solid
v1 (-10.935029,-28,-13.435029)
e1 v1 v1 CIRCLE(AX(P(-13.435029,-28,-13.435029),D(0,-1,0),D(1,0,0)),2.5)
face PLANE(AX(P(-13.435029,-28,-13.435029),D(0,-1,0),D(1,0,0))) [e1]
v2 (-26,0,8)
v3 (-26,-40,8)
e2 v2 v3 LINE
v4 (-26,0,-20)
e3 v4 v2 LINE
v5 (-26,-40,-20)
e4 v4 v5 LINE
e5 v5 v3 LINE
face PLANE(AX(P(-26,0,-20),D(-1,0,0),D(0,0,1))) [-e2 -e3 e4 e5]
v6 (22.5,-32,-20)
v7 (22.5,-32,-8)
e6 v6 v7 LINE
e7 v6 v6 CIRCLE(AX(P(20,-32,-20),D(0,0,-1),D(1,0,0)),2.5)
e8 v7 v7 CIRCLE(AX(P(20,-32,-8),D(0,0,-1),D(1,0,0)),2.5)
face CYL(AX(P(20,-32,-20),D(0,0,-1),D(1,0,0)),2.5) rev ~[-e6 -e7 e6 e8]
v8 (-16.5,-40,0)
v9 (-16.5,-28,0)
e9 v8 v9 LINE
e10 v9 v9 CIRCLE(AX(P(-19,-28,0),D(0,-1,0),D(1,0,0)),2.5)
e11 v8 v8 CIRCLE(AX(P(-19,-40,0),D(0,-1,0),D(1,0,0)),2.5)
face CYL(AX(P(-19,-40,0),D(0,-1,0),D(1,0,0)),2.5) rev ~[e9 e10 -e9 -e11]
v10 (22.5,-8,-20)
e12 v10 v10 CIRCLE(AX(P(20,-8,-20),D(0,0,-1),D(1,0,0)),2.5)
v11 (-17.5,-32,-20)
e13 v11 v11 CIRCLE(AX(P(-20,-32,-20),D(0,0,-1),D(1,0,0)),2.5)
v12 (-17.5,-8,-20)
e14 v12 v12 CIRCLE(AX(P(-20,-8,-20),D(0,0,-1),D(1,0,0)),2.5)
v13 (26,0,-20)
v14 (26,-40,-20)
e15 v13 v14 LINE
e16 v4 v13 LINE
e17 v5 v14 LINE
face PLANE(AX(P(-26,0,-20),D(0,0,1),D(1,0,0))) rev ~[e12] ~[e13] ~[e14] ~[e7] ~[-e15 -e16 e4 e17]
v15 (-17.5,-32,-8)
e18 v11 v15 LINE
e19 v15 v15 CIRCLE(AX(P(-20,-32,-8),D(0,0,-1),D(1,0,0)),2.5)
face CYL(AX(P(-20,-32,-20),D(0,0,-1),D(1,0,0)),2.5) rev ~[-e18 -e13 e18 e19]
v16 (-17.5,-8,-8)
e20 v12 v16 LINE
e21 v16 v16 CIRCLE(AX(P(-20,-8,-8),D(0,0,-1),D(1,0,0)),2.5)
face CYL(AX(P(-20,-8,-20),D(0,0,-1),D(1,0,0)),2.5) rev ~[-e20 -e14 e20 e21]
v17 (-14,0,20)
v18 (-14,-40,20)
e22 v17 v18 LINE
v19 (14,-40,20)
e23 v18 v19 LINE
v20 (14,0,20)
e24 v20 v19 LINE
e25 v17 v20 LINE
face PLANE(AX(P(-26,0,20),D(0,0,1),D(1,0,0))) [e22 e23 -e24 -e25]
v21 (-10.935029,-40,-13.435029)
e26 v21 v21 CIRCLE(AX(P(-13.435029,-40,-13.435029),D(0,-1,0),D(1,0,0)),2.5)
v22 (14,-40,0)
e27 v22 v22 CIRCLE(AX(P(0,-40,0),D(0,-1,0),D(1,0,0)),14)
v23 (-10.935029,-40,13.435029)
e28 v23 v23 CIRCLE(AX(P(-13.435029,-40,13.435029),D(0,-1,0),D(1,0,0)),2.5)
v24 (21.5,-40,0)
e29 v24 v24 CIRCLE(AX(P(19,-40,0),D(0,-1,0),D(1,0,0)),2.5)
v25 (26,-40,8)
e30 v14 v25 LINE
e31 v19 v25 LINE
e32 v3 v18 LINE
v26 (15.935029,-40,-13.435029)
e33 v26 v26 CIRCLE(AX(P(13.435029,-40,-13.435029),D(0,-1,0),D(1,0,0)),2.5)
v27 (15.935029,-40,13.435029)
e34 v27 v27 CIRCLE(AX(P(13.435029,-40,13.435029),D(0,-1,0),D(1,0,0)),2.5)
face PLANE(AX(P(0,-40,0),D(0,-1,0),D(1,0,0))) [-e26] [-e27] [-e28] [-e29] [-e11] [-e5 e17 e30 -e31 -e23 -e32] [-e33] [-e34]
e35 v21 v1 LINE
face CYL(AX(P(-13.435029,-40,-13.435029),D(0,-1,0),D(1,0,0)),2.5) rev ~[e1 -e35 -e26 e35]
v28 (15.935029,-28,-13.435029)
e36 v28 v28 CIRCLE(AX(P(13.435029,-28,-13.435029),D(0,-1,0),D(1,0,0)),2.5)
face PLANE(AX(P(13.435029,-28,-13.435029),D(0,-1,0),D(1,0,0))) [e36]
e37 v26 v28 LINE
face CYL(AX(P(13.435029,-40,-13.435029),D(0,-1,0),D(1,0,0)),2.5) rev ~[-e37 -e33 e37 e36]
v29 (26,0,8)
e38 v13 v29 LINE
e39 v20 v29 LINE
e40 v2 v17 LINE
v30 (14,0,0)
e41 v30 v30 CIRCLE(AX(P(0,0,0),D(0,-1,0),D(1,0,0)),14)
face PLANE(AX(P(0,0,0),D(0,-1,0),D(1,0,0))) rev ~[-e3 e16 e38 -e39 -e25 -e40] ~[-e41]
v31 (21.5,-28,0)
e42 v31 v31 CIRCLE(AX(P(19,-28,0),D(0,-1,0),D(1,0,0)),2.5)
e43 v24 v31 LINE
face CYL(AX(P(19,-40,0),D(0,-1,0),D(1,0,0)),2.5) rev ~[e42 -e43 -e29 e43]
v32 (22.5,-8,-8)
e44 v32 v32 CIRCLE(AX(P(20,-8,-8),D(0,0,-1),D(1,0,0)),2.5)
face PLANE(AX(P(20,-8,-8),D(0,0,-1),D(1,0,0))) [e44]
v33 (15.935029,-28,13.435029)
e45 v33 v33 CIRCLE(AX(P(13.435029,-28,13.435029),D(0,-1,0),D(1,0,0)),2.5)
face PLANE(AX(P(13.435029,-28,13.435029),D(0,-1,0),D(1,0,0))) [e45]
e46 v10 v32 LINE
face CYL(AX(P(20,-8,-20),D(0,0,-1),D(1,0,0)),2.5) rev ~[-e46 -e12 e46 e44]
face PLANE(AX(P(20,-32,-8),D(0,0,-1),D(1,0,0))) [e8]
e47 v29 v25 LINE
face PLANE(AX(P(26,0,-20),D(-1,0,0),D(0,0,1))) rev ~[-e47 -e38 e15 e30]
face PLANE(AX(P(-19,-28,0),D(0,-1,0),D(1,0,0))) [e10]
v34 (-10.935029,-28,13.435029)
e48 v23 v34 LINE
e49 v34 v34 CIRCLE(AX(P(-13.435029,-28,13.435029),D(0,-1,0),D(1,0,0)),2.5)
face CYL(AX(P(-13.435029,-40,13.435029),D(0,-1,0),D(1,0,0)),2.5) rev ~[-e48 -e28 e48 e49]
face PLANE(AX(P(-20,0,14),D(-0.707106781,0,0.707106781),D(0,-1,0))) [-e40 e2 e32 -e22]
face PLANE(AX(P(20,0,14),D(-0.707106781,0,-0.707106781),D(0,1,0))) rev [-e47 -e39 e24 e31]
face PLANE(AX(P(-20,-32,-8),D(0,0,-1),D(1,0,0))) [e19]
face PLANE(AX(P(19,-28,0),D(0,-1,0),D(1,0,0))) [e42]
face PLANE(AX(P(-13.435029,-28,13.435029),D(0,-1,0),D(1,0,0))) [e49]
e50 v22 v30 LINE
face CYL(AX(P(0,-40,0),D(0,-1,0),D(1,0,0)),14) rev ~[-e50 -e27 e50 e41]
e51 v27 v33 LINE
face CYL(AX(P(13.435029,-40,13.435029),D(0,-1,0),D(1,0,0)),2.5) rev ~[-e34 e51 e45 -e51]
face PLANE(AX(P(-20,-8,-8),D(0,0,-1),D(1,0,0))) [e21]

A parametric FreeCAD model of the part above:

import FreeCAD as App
import Part
import Sketcher

V = App.Vector
Q = App.Units.Quantity


def edges_at(feature, points):
    """Names of the edges that pass closest to the given points."""
    edges = feature.Shape.Edges
    near = lambda p: min(range(len(edges)), key=lambda i: edges[i].distToShape(Part.Vertex(*p))[0])
    return sorted({f"Edge{near(p) + 1}" for p in points})

doc = App.newDocument("Part")
body = doc.addObject("PartDesign::Body", "Body")

# Sketch on XZ plane
sketch1 = doc.addObject("Sketcher::SketchObject", "Sketch")
body.addObject(sketch1)
sketch1.AttachmentSupport = (doc.XZ_Plane, [""])
sketch1.MapMode = "FlatFace"
sketch1.addGeometry(Part.LineSegment(V(-26, 20, 0), V(-26, -20, 0)), False)
sketch1.addGeometry(Part.LineSegment(V(-26, -20, 0), V(26, -20, 0)), False)
sketch1.addGeometry(Part.LineSegment(V(26, -20, 0), V(26, 20, 0)), False)
sketch1.addGeometry(Part.LineSegment(V(26, 20, 0), V(-26, 20, 0)), False)
sketch1.addConstraint(Sketcher.Constraint("Coincident", 0, 2, 1, 1))
sketch1.addConstraint(Sketcher.Constraint("Coincident", 1, 2, 2, 1))
sketch1.addConstraint(Sketcher.Constraint("Coincident", 2, 2, 3, 1))
sketch1.addConstraint(Sketcher.Constraint("Coincident", 3, 2, 0, 1))
sketch1.addConstraint(Sketcher.Constraint("Vertical", 0))
sketch1.addConstraint(Sketcher.Constraint("Horizontal", 1))
sketch1.addConstraint(Sketcher.Constraint("Vertical", 2))
sketch1.addConstraint(Sketcher.Constraint("Horizontal", 3))
sketch1.addConstraint(Sketcher.Constraint("Symmetric", 0, 2, 2, 2, -1, 1))
sketch1.addConstraint(Sketcher.Constraint("DistanceX", 1, 1, 1, 2, Q("52 mm")))
sketch1.addConstraint(Sketcher.Constraint("DistanceY", 0, 2, 0, 1, Q("40 mm")))
pad1 = doc.addObject("PartDesign::Pad", "Pad")
body.addObject(pad1)
pad1.Profile = sketch1
pad1.Length = 40

# Sketch on XZ plane
sketch2 = doc.addObject("Sketcher::SketchObject", "Sketch001")
body.addObject(sketch2)
sketch2.AttachmentSupport = (doc.XZ_Plane, [""])
sketch2.MapMode = "FlatFace"
sketch2.AttachmentOffset = App.Placement(V(0, 0, 40), App.Rotation())
sketch2.addGeometry(Part.Circle(V(0, 0, 0), V(0, 0, 1), 14), False)
sketch2.addConstraint(Sketcher.Constraint("Coincident", 0, 3, -1, 1))
sketch2.addConstraint(Sketcher.Constraint("Diameter", 0, Q("28 mm")))
pocket1 = doc.addObject("PartDesign::Pocket", "Pocket")
body.addObject(pocket1)
pocket1.Profile = sketch2
pocket1.Type = "ThroughAll"
doc.recompute()

chamfer = doc.addObject("PartDesign::Chamfer", "Chamfer")
body.addObject(chamfer)
chamfer.Base = (pocket1, edges_at(pocket1, [(-26, -20, 20), (26, -20, 20)]))
chamfer.Size = 12

# Sketch on XZ plane
sketch3 = doc.addObject("Sketcher::SketchObject", "Sketch002")
body.addObject(sketch3)
sketch3.AttachmentSupport = (doc.XZ_Plane, [""])
sketch3.MapMode = "FlatFace"
sketch3.AttachmentOffset = App.Placement(V(0, 0, 40), App.Rotation())
sketch3.addGeometry(Part.Circle(V(-19, 0, 0), V(0, 0, 1), 2.5), False)
sketch3.addGeometry(Part.Circle(V(-13.4, -13.4, 0), V(0, 0, 1), 2.5), False)
sketch3.addGeometry(Part.Circle(V(13.4, -13.4, 0), V(0, 0, 1), 2.5), False)
sketch3.addGeometry(Part.Circle(V(19, 0, 0), V(0, 0, 1), 2.5), False)
sketch3.addGeometry(Part.Circle(V(13.4, 13.4, 0), V(0, 0, 1), 2.5), False)
sketch3.addGeometry(Part.Circle(V(-13.4, 13.4, 0), V(0, 0, 1), 2.5), False)
sketch3.addConstraint(Sketcher.Constraint("Equal", 0, 1))
sketch3.addConstraint(Sketcher.Constraint("Equal", 1, 2))
sketch3.addConstraint(Sketcher.Constraint("Equal", 2, 3))
sketch3.addConstraint(Sketcher.Constraint("Equal", 3, 4))
sketch3.addConstraint(Sketcher.Constraint("Equal", 4, 5))
sketch3.addConstraint(Sketcher.Constraint("Symmetric", 0, 3, 3, 3, -1, 1))
sketch3.addConstraint(Sketcher.Constraint("Symmetric", 1, 3, 4, 3, -1, 1))
sketch3.addConstraint(Sketcher.Constraint("Symmetric", 2, 3, 5, 3, -1, 1))
sketch3.addConstraint(Sketcher.Constraint("Symmetric", 1, 3, 2, 3, -2))
sketch3.addConstraint(Sketcher.Constraint("PointOnObject", 0, 3, -1))
sketch3.addConstraint(Sketcher.Constraint("Diameter", 0, Q("5 mm")))
sketch3.addConstraint(Sketcher.Constraint("DistanceX", 0, 3, -1, 1, Q("19 mm")))
sketch3.addConstraint(Sketcher.Constraint("DistanceX", 1, 3, -1, 1, Q("13.435029 mm")))
sketch3.addConstraint(Sketcher.Constraint("DistanceY", 1, 3, -1, 1, Q("13.435029 mm")))
pocket2 = doc.addObject("PartDesign::Pocket", "Pocket001")
body.addObject(pocket2)
pocket2.Profile = sketch3
pocket2.Length = 12

# Sketch on XY plane
sketch4 = doc.addObject("Sketcher::SketchObject", "Sketch003")
body.addObject(sketch4)
sketch4.AttachmentSupport = (doc.XY_Plane, [""])
sketch4.MapMode = "FlatFace"
sketch4.AttachmentOffset = App.Placement(V(0, 0, -20), App.Rotation())
sketch4.addGeometry(Part.Circle(V(-20, -32, 0), V(0, 0, 1), 2.5), False)
sketch4.addGeometry(Part.Circle(V(20, -32, 0), V(0, 0, 1), 2.5), False)
sketch4.addGeometry(Part.Circle(V(20, -8, 0), V(0, 0, 1), 2.5), False)
sketch4.addGeometry(Part.Circle(V(-20, -8, 0), V(0, 0, 1), 2.5), False)
sketch4.addConstraint(Sketcher.Constraint("Equal", 0, 1))
sketch4.addConstraint(Sketcher.Constraint("Equal", 1, 2))
sketch4.addConstraint(Sketcher.Constraint("Equal", 2, 3))
sketch4.addConstraint(Sketcher.Constraint("Symmetric", 0, 3, 1, 3, -2))
sketch4.addConstraint(Sketcher.Constraint("Symmetric", 2, 3, 3, 3, -2))
sketch4.addConstraint(Sketcher.Constraint("Vertical", 1, 3, 2, 3))
sketch4.addConstraint(Sketcher.Constraint("Diameter", 0, Q("5 mm")))
sketch4.addConstraint(Sketcher.Constraint("DistanceX", 0, 3, -1, 1, Q("20 mm")))
sketch4.addConstraint(Sketcher.Constraint("DistanceY", 0, 3, -1, 1, Q("32 mm")))
sketch4.addConstraint(Sketcher.Constraint("DistanceY", 2, 3, -1, 1, Q("8 mm")))
pocket3 = doc.addObject("PartDesign::Pocket", "Pocket002")
body.addObject(pocket3)
pocket3.Profile = sketch4
pocket3.Length = 12
pocket3.Reversed = True

doc.recompute()
